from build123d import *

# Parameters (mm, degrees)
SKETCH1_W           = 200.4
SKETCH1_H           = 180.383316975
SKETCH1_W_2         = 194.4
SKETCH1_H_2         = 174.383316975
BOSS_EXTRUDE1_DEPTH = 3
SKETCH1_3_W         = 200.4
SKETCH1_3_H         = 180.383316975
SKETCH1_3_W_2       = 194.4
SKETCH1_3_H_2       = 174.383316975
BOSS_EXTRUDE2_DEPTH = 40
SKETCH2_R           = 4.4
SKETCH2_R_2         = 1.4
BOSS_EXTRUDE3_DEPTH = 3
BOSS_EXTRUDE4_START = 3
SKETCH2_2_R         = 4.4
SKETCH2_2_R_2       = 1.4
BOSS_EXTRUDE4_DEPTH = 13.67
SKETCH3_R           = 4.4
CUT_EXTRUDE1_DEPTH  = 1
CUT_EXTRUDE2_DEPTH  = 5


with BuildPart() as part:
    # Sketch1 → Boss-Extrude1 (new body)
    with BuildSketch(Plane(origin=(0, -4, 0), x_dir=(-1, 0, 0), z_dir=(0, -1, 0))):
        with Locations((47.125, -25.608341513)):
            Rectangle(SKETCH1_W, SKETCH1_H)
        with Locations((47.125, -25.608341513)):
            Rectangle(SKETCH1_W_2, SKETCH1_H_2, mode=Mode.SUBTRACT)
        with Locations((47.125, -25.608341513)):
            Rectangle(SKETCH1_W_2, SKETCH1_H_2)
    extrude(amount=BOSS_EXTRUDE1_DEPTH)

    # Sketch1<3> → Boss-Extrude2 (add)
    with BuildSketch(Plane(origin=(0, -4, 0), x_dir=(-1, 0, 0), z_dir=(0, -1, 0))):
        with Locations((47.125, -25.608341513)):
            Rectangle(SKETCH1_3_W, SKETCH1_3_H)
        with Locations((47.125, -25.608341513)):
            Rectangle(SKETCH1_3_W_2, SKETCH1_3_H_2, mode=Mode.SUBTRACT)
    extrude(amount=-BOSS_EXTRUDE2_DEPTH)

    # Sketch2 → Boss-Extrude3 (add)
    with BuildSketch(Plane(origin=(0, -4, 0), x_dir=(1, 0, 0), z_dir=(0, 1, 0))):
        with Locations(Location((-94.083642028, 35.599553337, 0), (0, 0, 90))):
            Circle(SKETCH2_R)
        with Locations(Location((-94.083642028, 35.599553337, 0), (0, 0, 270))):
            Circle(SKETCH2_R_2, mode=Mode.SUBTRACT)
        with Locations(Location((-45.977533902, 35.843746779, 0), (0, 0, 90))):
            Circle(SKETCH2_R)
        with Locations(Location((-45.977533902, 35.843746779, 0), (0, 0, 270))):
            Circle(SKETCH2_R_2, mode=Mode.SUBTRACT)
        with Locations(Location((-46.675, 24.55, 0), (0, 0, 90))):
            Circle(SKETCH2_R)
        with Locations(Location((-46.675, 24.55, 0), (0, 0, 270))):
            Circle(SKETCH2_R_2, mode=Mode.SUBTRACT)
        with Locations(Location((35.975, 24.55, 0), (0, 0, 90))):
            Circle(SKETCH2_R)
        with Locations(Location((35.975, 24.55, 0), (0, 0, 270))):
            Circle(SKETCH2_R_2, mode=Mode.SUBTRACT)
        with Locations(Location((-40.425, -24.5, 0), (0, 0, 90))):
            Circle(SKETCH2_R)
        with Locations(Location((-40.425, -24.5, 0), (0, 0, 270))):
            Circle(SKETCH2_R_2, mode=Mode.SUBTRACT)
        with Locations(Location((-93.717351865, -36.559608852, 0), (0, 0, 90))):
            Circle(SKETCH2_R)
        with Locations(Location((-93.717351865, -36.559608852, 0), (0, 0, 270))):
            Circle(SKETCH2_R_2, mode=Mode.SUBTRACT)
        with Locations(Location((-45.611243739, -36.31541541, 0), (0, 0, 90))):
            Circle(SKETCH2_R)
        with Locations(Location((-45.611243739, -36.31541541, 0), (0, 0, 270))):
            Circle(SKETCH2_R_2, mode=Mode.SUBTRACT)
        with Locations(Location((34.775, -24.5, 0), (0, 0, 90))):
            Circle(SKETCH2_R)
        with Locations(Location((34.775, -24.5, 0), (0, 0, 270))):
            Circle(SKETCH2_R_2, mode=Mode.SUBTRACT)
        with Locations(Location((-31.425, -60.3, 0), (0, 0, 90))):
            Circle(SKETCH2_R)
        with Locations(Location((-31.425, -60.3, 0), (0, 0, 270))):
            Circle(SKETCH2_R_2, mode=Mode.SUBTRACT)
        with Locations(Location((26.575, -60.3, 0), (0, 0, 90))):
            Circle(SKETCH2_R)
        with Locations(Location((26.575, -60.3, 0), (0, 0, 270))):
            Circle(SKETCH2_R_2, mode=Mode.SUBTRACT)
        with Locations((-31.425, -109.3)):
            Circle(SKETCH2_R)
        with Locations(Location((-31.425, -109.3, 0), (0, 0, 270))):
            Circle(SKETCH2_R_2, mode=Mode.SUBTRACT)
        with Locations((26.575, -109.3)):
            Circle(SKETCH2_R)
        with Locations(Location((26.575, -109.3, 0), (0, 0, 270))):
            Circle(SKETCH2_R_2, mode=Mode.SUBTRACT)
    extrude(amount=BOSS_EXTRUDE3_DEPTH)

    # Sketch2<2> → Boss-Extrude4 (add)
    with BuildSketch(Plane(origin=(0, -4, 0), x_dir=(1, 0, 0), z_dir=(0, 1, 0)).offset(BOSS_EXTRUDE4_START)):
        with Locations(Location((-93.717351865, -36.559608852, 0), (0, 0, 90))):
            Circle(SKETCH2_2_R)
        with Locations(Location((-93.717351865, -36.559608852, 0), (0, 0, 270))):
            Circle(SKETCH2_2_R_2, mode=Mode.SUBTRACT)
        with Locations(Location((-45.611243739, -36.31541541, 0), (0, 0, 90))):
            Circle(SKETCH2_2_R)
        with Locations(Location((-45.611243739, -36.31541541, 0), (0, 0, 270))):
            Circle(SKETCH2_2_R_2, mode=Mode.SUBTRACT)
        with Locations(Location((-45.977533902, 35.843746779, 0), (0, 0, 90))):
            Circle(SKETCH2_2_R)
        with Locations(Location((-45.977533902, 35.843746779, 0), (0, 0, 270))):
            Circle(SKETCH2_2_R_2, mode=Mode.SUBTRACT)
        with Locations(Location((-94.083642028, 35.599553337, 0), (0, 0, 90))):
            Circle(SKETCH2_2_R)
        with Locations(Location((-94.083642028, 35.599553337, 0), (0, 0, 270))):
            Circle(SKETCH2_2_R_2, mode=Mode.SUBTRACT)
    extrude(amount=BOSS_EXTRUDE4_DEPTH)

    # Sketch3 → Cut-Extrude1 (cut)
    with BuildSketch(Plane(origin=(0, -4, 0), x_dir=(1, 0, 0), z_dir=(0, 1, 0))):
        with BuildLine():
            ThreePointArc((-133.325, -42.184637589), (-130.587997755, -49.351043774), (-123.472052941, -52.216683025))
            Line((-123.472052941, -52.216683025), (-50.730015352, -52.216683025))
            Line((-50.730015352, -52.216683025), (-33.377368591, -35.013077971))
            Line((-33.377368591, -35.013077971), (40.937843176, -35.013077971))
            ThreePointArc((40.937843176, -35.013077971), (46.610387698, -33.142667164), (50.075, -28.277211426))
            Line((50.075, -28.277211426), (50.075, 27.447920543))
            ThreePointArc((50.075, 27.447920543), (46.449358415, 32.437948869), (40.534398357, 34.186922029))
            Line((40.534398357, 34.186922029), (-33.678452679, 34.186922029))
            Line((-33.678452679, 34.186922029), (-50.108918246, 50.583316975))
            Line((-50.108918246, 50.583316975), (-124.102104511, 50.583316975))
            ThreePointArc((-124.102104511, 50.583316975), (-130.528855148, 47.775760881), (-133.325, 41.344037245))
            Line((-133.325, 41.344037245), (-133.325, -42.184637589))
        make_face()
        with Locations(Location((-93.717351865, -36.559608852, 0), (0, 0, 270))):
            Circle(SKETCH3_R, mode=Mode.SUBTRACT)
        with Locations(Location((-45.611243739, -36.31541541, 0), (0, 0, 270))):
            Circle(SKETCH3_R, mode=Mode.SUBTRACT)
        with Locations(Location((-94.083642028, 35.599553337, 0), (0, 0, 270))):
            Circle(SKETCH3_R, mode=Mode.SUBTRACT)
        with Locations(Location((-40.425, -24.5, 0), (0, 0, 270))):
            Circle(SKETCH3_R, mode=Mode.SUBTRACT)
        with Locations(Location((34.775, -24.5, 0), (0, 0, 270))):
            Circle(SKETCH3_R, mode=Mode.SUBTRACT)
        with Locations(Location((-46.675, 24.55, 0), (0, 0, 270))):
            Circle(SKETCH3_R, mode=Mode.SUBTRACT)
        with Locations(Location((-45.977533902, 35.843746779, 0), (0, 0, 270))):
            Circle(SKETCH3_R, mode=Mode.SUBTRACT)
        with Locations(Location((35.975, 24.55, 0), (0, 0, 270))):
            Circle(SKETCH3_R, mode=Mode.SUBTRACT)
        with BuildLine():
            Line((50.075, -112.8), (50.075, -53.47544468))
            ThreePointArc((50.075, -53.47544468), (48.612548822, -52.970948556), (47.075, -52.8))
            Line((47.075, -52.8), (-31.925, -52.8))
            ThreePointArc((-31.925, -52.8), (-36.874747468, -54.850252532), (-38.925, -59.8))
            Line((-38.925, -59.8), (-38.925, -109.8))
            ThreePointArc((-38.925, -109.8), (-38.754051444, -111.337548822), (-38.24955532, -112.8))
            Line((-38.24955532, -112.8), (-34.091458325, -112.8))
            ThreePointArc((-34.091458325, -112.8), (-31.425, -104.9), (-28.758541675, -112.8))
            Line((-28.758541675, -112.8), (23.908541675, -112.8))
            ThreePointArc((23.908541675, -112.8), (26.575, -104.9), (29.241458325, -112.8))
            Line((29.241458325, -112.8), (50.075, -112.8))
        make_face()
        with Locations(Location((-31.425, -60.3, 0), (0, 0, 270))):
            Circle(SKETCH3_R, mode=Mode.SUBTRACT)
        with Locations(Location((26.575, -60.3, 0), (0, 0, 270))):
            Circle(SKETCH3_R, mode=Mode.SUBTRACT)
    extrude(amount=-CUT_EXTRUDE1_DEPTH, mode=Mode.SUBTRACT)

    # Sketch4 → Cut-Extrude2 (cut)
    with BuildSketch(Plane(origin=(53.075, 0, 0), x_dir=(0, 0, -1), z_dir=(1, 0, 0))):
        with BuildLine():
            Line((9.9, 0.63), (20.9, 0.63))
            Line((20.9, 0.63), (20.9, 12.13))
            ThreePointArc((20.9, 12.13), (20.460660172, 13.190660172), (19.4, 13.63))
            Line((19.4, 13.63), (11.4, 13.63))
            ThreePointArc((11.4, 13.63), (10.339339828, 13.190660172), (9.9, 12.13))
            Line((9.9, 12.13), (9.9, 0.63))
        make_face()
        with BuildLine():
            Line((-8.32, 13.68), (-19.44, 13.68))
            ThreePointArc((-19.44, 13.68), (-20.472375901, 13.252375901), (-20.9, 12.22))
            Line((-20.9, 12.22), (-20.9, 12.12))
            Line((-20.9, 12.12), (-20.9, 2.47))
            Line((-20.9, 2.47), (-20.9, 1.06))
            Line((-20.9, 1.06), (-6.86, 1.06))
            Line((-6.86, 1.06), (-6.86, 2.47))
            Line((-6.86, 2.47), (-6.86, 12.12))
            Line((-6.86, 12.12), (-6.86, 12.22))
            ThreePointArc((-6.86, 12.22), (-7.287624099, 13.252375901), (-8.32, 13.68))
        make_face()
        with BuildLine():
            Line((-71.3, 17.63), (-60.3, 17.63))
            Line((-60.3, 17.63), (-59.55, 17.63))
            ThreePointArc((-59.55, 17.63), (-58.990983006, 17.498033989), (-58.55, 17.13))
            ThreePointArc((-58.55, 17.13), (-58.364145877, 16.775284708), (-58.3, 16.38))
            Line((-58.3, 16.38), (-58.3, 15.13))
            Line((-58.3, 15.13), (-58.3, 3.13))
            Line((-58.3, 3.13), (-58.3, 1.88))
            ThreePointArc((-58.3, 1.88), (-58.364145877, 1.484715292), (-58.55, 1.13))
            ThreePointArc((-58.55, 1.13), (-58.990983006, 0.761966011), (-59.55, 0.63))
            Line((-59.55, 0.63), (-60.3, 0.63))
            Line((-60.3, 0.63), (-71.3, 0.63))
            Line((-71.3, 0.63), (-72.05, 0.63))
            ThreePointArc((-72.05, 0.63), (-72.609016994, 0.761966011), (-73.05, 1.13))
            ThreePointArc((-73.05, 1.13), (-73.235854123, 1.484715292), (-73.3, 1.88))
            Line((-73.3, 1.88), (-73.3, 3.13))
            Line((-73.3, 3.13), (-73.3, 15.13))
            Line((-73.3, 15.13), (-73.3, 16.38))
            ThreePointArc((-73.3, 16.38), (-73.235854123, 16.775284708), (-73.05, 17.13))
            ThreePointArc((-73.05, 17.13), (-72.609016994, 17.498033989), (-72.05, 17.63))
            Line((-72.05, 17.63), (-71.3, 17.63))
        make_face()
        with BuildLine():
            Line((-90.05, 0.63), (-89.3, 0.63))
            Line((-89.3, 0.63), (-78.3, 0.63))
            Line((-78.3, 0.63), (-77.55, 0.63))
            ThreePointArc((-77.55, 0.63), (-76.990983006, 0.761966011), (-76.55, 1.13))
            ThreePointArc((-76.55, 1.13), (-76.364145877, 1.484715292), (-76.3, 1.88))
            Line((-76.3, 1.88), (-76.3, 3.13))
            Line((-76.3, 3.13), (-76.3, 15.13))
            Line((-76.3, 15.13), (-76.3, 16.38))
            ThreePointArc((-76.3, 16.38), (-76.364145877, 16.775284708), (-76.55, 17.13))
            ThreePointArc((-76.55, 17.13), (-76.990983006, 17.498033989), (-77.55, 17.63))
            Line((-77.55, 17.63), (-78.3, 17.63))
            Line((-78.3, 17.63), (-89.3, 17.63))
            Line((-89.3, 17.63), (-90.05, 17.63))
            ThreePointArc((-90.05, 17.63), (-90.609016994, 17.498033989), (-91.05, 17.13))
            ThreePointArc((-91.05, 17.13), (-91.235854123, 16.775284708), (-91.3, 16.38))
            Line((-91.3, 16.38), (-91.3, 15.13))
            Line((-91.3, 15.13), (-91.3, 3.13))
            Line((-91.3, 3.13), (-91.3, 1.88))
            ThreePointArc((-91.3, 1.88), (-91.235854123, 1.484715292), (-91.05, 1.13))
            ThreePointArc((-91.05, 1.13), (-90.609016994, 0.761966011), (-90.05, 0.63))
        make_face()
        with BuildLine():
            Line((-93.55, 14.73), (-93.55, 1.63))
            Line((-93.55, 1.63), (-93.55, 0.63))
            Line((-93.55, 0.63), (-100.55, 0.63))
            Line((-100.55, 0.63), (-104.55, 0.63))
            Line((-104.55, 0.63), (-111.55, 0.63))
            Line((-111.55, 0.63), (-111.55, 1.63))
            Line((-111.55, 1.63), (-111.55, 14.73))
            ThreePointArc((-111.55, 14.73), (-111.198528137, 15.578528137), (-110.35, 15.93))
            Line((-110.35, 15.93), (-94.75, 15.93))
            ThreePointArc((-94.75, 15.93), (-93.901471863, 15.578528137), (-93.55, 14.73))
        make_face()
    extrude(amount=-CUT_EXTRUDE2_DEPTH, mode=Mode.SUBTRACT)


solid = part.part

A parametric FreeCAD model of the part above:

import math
import FreeCAD as App
import Part
import Sketcher
from FreeCAD import Vector
Q = App.Units.Quantity


def add_polygon(sketch, points):
    """Adds a closed chain of lines whose ends are joined by coincident constraints."""
    first, n = sketch.GeometryCount, len(points)
    for a, b in zip(points, points[1:] + points[:1]):
        sketch.addGeometry(Part.LineSegment(App.Vector(*a, 0), App.Vector(*b, 0)), False)
    for i in range(n):
        sketch.addConstraint(Sketcher.Constraint("Coincident", first + i, 2, first + (i + 1) % n, 1))

doc = App.newDocument("Part")
body = doc.addObject("PartDesign::Body", "Body")

# Sketch on XZ plane
sketch1 = body.newObject("Sketcher::SketchObject", "Sketch")
sketch1.AttachmentSupport = (doc.getObject("XZ_Plane"), [""])
sketch1.MapMode = "FlatFace"
sketch1.AttachmentOffset = App.Placement(Vector(0, 0, 4), App.Rotation())
add_polygon(sketch1, [(53, -65), (53, 116), (-147, 116), (-147, -65)])  # lines 0-3
sketch1.addConstraint([
    Sketcher.Constraint("Vertical", 0),
    Sketcher.Constraint("Horizontal", 1),
    Sketcher.Constraint("Vertical", 2),
    Sketcher.Constraint("Horizontal", 3),
    Sketcher.Constraint("DistanceX", 1, 2, 1, 1, Q("200.4 mm")),
    Sketcher.Constraint("DistanceY", -1, 1, 0, 2, Q("115.8 mm")),
    Sketcher.Constraint("DistanceX", -1, 1, 0, 2, Q("53.075 mm")),
    Sketcher.Constraint("DistanceY", 0, 1, 0, 2, Q("180.383317 mm")),
])
pad1 = body.newObject("PartDesign::Pad", "Pad")
pad1.Profile = sketch1
pad1.Length = 3

# Sketch on XZ plane
sketch2 = body.newObject("Sketcher::SketchObject", "Sketch001")
sketch2.AttachmentSupport = (doc.getObject("XZ_Plane"), [""])
sketch2.MapMode = "FlatFace"
sketch2.AttachmentOffset = App.Placement(Vector(0, 0, 4), App.Rotation())
add_polygon(sketch2, [(53, -65), (53, 116), (-147, 116), (-147, -65)])  # lines 0-3
add_polygon(sketch2, [(-144, 113), (50, 113), (50, -62), (-144, -62)])  # lines 4-7
sketch2.addConstraint([
    Sketcher.Constraint("Vertical", 0),
    Sketcher.Constraint("Horizontal", 1),
    Sketcher.Constraint("Vertical", 2),
    Sketcher.Constraint("Horizontal", 3),
    Sketcher.Constraint("Horizontal", 4),
    Sketcher.Constraint("Vertical", 5),
    Sketcher.Constraint("Horizontal", 6),
    Sketcher.Constraint("Vertical", 7),
    Sketcher.Constraint("DistanceX", 1, 2, 1, 1, Q("200.4 mm")),
    Sketcher.Constraint("DistanceX", 4, 1, 4, 2, Q("194.4 mm")),
    Sketcher.Constraint("DistanceX", 4, 2, 0, 2, Q("3 mm")),
    Sketcher.Constraint("DistanceY", 4, 2, 0, 2, Q("3 mm")),
    Sketcher.Constraint("DistanceY", 3, 2, 5, 2, Q("3 mm")),
    Sketcher.Constraint("DistanceY", -1, 1, 0, 2, Q("115.8 mm")),
    Sketcher.Constraint("DistanceX", -1, 1, 0, 2, Q("53.075 mm")),
    Sketcher.Constraint("DistanceY", 0, 1, 0, 2, Q("180.383317 mm")),
])
pad2 = body.newObject("PartDesign::Pad", "Pad001")
pad2.Profile = sketch2
pad2.Length = 40
pad2.Reversed = True

# Sketch on XZ plane
sketch3 = body.newObject("Sketcher::SketchObject", "Sketch002")
sketch3.AttachmentSupport = (doc.getObject("XZ_Plane"), [""])
sketch3.MapMode = "FlatFace"
sketch3.AttachmentOffset = App.Placement(Vector(0, 0, 4), App.Rotation())
sketch3.addGeometry([
    Part.Circle(Vector(-94.1, -35.6, 0), Vector(0, 0, 1), 4.4),  # 0
    Part.Circle(Vector(-94.1, -35.6, 0), Vector(0, 0, 1), 1.4),  # 1
    Part.Circle(Vector(-46, -35.8, 0), Vector(0, 0, 1), 4.4),  # 2
    Part.Circle(Vector(-46, -35.8, 0), Vector(0, 0, 1), 1.4),  # 3
    Part.Circle(Vector(-46.7, -24.6, 0), Vector(0, 0, 1), 4.4),  # 4
    Part.Circle(Vector(-46.7, -24.6, 0), Vector(0, 0, 1), 1.4),  # 5
    Part.Circle(Vector(36, -24.6, 0), Vector(0, 0, 1), 4.4),  # 6
    Part.Circle(Vector(36, -24.6, 0), Vector(0, 0, 1), 1.4),  # 7
    Part.Circle(Vector(-40.4, 24.5, 0), Vector(0, 0, 1), 4.4),  # 8
    Part.Circle(Vector(-40.4, 24.5, 0), Vector(0, 0, 1), 1.4),  # 9
    Part.Circle(Vector(-93.7, 36.6, 0), Vector(0, 0, 1), 4.4),  # 10
    Part.Circle(Vector(-93.7, 36.6, 0), Vector(0, 0, 1), 1.4),  # 11
    Part.Circle(Vector(-45.6, 36.3, 0), Vector(0, 0, 1), 4.4),  # 12
    Part.Circle(Vector(-45.6, 36.3, 0), Vector(0, 0, 1), 1.4),  # 13
    Part.Circle(Vector(34.8, 24.5, 0), Vector(0, 0, 1), 4.4),  # 14
    Part.Circle(Vector(34.8, 24.5, 0), Vector(0, 0, 1), 1.4),  # 15
    Part.Circle(Vector(-31.4, 60.3, 0), Vector(0, 0, 1), 4.4),  # 16
    Part.Circle(Vector(-31.4, 60.3, 0), Vector(0, 0, 1), 1.4),  # 17
    Part.Circle(Vector(26.6, 60.3, 0), Vector(0, 0, 1), 4.4),  # 18
    Part.Circle(Vector(26.6, 60.3, 0), Vector(0, 0, 1), 1.4),  # 19
    Part.Circle(Vector(-31.4, 109.3, 0), Vector(0, 0, 1), 4.4),  # 20
    Part.Circle(Vector(-31.4, 109.3, 0), Vector(0, 0, 1), 1.4),  # 21
    Part.Circle(Vector(26.6, 109.3, 0), Vector(0, 0, 1), 4.4),  # 22
    Part.Circle(Vector(26.6, 109.3, 0), Vector(0, 0, 1), 1.4),  # 23
], False)
sketch3.addConstraint([
    Sketcher.Constraint("Coincident", 1, 3, 0, 3),
    Sketcher.Constraint("Coincident", 3, 3, 2, 3),
    Sketcher.Constraint("Coincident", 5, 3, 4, 3),
    Sketcher.Constraint("Coincident", 7, 3, 6, 3),
    Sketcher.Constraint("Coincident", 9, 3, 8, 3),
    Sketcher.Constraint("Coincident", 11, 3, 10, 3),
    Sketcher.Constraint("Coincident", 13, 3, 12, 3),
    Sketcher.Constraint("Coincident", 15, 3, 14, 3),
    Sketcher.Constraint("Coincident", 17, 3, 16, 3),
    Sketcher.Constraint("Coincident", 19, 3, 18, 3),
    Sketcher.Constraint("Coincident", 21, 3, 20, 3),
    Sketcher.Constraint("Coincident", 23, 3, 22, 3),
    Sketcher.Constraint("Equal", 0, 2),
    Sketcher.Constraint("Equal", 1, 3),
    Sketcher.Constraint("Equal", 2, 4),
    Sketcher.Constraint("Equal", 3, 5),
    Sketcher.Constraint("Equal", 4, 6),
    Sketcher.Constraint("Equal", 5, 7),
    Sketcher.Constraint("Equal", 6, 8),
    Sketcher.Constraint("Equal", 7, 9),
    Sketcher.Constraint("Equal", 8, 10),
    Sketcher.Constraint("Equal", 9, 11),
    Sketcher.Constraint("Equal", 10, 12),
    Sketcher.Constraint("Equal", 11, 13),
    Sketcher.Constraint("Equal", 12, 14),
    Sketcher.Constraint("Equal", 13, 15),
    Sketcher.Constraint("Equal", 14, 16),
    Sketcher.Constraint("Equal", 15, 17),
    Sketcher.Constraint("Equal", 16, 18),
    Sketcher.Constraint("Equal", 17, 19),
    Sketcher.Constraint("Equal", 18, 20),
    Sketcher.Constraint("Equal", 19, 21),
    Sketcher.Constraint("Equal", 20, 22),
    Sketcher.Constraint("Equal", 21, 23),
    Sketcher.Constraint("Horizontal", 5, 3, 6, 3),
    Sketcher.Constraint("Horizontal", 9, 3, 14, 3),
    Sketcher.Constraint("Horizontal", 17, 3, 18, 3),
    Sketcher.Constraint("Horizontal", 21, 3, 22, 3),
    Sketcher.Constraint("Vertical", 17, 3, 20, 3),
    Sketcher.Constraint("Vertical", 19, 3, 22, 3),
    Sketcher.Constraint("Diameter", 0, Q("8.8 mm")),
    Sketcher.Constraint("Diameter", 1, Q("2.8 mm")),
    Sketcher.Constraint("DistanceX", 8, 3, 16, 3, Q("9 mm")),
    Sketcher.Constraint("DistanceX", 16, 3, 18, 3, Q("58 mm")),
    Sketcher.Constraint("DistanceY", 16, 3, 20, 3, Q("49 mm")),
    Sketcher.Constraint("DistanceY", -1, 1, 8, 3, Q("24.5 mm")),
    Sketcher.Constraint("DistanceY", -1, 1, 16, 3, Q("60.3 mm")),
    Sketcher.Constraint("DistanceX", 14, 3, 6, 3, Q("1.2 mm")),
    Sketcher.Constraint("DistanceX", 8, 3, 14, 3, Q("75.2 mm")),
    Sketcher.Constraint("DistanceY", 4, 3, -1, 1, Q("24.55 mm")),
    Sketcher.Constraint("DistanceX", 4, 3, 6, 3, Q("82.65 mm")),
    Sketcher.Constraint("DistanceX", 4, 3, -1, 1, Q("46.675 mm")),
    Sketcher.Constraint("DistanceX", 10, 3, -1, 1, Q("93.717352 mm")),
    Sketcher.Constraint("DistanceY", -1, 1, 10, 3, Q("36.559609 mm")),
    Sketcher.Constraint("DistanceX", 0, 3, 2, 3, Q("48.106108 mm")),
    Sketcher.Constraint("DistanceX", 0, 3, 10, 3, Q("0.36629 mm")),
    Sketcher.Constraint("DistanceX", 10, 3, 12, 3, Q("48.106108 mm")),
    Sketcher.Constraint("DistanceY", 0, 3, -1, 1, Q("35.599553 mm")),
    Sketcher.Constraint("DistanceY", 2, 3, -1, 1, Q("35.843747 mm")),
    Sketcher.Constraint("DistanceY", -1, 1, 12, 3, Q("36.315415 mm")),
])
pad3 = body.newObject("PartDesign::Pad", "Pad002")
pad3.Profile = sketch3
pad3.Length = 3
pad3.Reversed = True

# Sketch on XZ plane
sketch4 = body.newObject("Sketcher::SketchObject", "Sketch003")
sketch4.AttachmentSupport = (doc.getObject("XZ_Plane"), [""])
sketch4.MapMode = "FlatFace"
sketch4.AttachmentOffset = App.Placement(Vector(0, 0, 1), App.Rotation())
sketch4.addGeometry([
    Part.Circle(Vector(-93.7, 36.6, 0), Vector(0, 0, 1), 4.4),  # 0
    Part.Circle(Vector(-93.7, 36.6, 0), Vector(0, 0, 1), 1.4),  # 1
    Part.Circle(Vector(-45.6, 36.3, 0), Vector(0, 0, 1), 4.4),  # 2
    Part.Circle(Vector(-45.6, 36.3, 0), Vector(0, 0, 1), 1.4),  # 3
    Part.Circle(Vector(-46, -35.8, 0), Vector(0, 0, 1), 4.4),  # 4
    Part.Circle(Vector(-46, -35.8, 0), Vector(0, 0, 1), 1.4),  # 5
    Part.Circle(Vector(-94.1, -35.6, 0), Vector(0, 0, 1), 4.4),  # 6
    Part.Circle(Vector(-94.1, -35.6, 0), Vector(0, 0, 1), 1.4),  # 7
], False)
sketch4.addConstraint([
    Sketcher.Constraint("Coincident", 1, 3, 0, 3),
    Sketcher.Constraint("Coincident", 3, 3, 2, 3),
    Sketcher.Constraint("Coincident", 5, 3, 4, 3),
    Sketcher.Constraint("Coincident", 7, 3, 6, 3),
    Sketcher.Constraint("Equal", 0, 2),
    Sketcher.Constraint("Equal", 1, 3),
    Sketcher.Constraint("Equal", 2, 4),
    Sketcher.Constraint("Equal", 3, 5),
    Sketcher.Constraint("Equal", 4, 6),
    Sketcher.Constraint("Equal", 5, 7),
    Sketcher.Constraint("Diameter", 0, Q("8.8 mm")),
    Sketcher.Constraint("Diameter", 1, Q("2.8 mm")),
    Sketcher.Constraint("DistanceX", 6, 3, 2, 3, Q("48.472398 mm")),
    Sketcher.Constraint("DistanceX", 0, 3, -1, 1, Q("93.717352 mm")),
    Sketcher.Constraint("DistanceY", -1, 1, 0, 3, Q("36.559609 mm")),
    Sketcher.Constraint("DistanceX", 0, 3, 2, 3, Q("48.106108 mm")),
    Sketcher.Constraint("DistanceX", 4, 3, 2, 3, Q("0.36629 mm")),
    Sketcher.Constraint("DistanceY", 6, 3, 2, 3, Q("71.914969 mm")),
    Sketcher.Constraint("DistanceY", -1, 1, 2, 3, Q("36.315415 mm")),
    Sketcher.Constraint("DistanceY", 4, 3, -1, 1, Q("35.843747 mm")),
])
pad4 = body.newObject("PartDesign::Pad", "Pad003")
pad4.Profile = sketch4
pad4.Length = 13.67
pad4.Reversed = True

# Sketch on XZ plane
sketch5 = body.newObject("Sketcher::SketchObject", "Sketch004")
sketch5.AttachmentSupport = (doc.getObject("XZ_Plane"), [""])
sketch5.MapMode = "FlatFace"
sketch5.AttachmentOffset = App.Placement(Vector(0, 0, 4), App.Rotation())
sketch5.addGeometry([
    Part.ArcOfCircle(Part.Circle(Vector(-123.7, 42.6, 0), Vector(0, 0, 1), 9.6), math.radians(88), math.radians(183)),  # 0
    Part.LineSegment(Vector(-123.5, 52.2, 0), Vector(-50.7, 52.2, 0)),  # 1
    Part.LineSegment(Vector(-50.7, 52.2, 0), Vector(-33.4, 35, 0)),  # 2
    Part.LineSegment(Vector(-33.4, 35, 0), Vector(40.9, 35, 0)),  # 3
    Part.ArcOfCircle(Part.Circle(Vector(40.9, 25.4, 0), Vector(0, 0, 1), 9.6), math.radians(17), math.radians(90)),  # 4
    Part.LineSegment(Vector(50.1, 28.3, 0), Vector(50.1, -27.4, 0)),  # 5
    Part.ArcOfCircle(Part.Circle(Vector(40.9, -24.6, 0), Vector(0, 0, 1), 9.6), math.radians(-92), math.radians(-17)),  # 6
    Part.LineSegment(Vector(40.5, -34.2, 0), Vector(-33.7, -34.2, 0)),  # 7
    Part.LineSegment(Vector(-33.7, -34.2, 0), Vector(-50.1, -50.6, 0)),  # 8
    Part.LineSegment(Vector(-50.1, -50.6, 0), Vector(-124.1, -50.6, 0)),  # 9
    Part.ArcOfCircle(Part.Circle(Vector(-123.7, -41, 0), Vector(0, 0, 1), 9.6), math.radians(-178), math.radians(-92)),  # 10
    Part.LineSegment(Vector(-133.3, -41.3, 0), Vector(-133.3, 42.2, 0)),  # 11
    Part.Circle(Vector(-93.7, 36.6, 0), Vector(0, 0, 1), 4.4),  # 12
    Part.Circle(Vector(-45.6, 36.3, 0), Vector(0, 0, 1), 4.4),  # 13
    Part.Circle(Vector(-40.4, 24.5, 0), Vector(0, 0, 1), 4.4),  # 14
    Part.Circle(Vector(34.8, 24.5, 0), Vector(0, 0, 1), 4.4),  # 15
    Part.Circle(Vector(-94.1, -35.6, 0), Vector(0, 0, 1), 4.4),  # 16
    Part.Circle(Vector(-46.7, -24.6, 0), Vector(0, 0, 1), 4.4),  # 17
    Part.Circle(Vector(-46, -35.8, 0), Vector(0, 0, 1), 4.4),  # 18
    Part.Circle(Vector(36, -24.6, 0), Vector(0, 0, 1), 4.4),  # 19
    Part.LineSegment(Vector(50.1, 112.8, 0), Vector(50.1, 53.5, 0)),  # 20
    Part.ArcOfCircle(Part.Circle(Vector(47.1, 59.8, 0), Vector(0, 0, 1), 7), math.radians(-90), math.radians(-65)),  # 21
    Part.LineSegment(Vector(47.1, 52.8, 0), Vector(-31.9, 52.8, 0)),  # 22
    Part.ArcOfCircle(Part.Circle(Vector(-31.9, 59.8, 0), Vector(0, 0, 1), 7), math.radians(-180), math.radians(-90)),  # 23
    Part.LineSegment(Vector(-38.9, 59.8, 0), Vector(-38.9, 109.8, 0)),  # 24
    Part.ArcOfCircle(Part.Circle(Vector(-31.9, 109.8, 0), Vector(0, 0, 1), 7), math.radians(155), math.radians(180)),  # 25
    Part.LineSegment(Vector(-38.2, 112.8, 0), Vector(-34.1, 112.8, 0)),  # 26
    Part.ArcOfCircle(Part.Circle(Vector(-31.4, 109.3, 0), Vector(0, 0, 1), 4.4), math.radians(127), math.radians(413)),  # 27
    Part.LineSegment(Vector(-28.8, 112.8, 0), Vector(23.9, 112.8, 0)),  # 28
    Part.ArcOfCircle(Part.Circle(Vector(26.6, 109.3, 0), Vector(0, 0, 1), 4.4), math.radians(127), math.radians(413)),  # 29
    Part.LineSegment(Vector(29.2, 112.8, 0), Vector(50.1, 112.8, 0)),  # 30
    Part.Circle(Vector(-31.4, 60.3, 0), Vector(0, 0, 1), 4.4),  # 31
    Part.Circle(Vector(26.6, 60.3, 0), Vector(0, 0, 1), 4.4),  # 32
], False)
sketch5.addConstraint([
    Sketcher.Constraint("Coincident", 0, 1, 1, 1),
    Sketcher.Constraint("Coincident", 1, 2, 2, 1),
    Sketcher.Constraint("Coincident", 2, 2, 3, 1),
    Sketcher.Constraint("Coincident", 3, 2, 4, 2),
    Sketcher.Constraint("Coincident", 4, 1, 5, 1),
    Sketcher.Constraint("Coincident", 5, 2, 6, 2),
    Sketcher.Constraint("Coincident", 6, 1, 7, 1),
    Sketcher.Constraint("Coincident", 7, 2, 8, 1),
    Sketcher.Constraint("Coincident", 8, 2, 9, 1),
    Sketcher.Constraint("Coincident", 9, 2, 10, 2),
    Sketcher.Constraint("Coincident", 10, 1, 11, 1),
    Sketcher.Constraint("Coincident", 11, 2, 0, 2),
    Sketcher.Constraint("Coincident", 20, 2, 21, 2),
    Sketcher.Constraint("Tangent", 21, 1, 22, 1),
    Sketcher.Constraint("Tangent", 22, 2, 23, 2),
    Sketcher.Constraint("Tangent", 23, 1, 24, 1),
    Sketcher.Constraint("Tangent", 24, 2, 25, 2),
    Sketcher.Constraint("Coincident", 25, 1, 26, 1),
    Sketcher.Constraint("Coincident", 26, 2, 27, 1),
    Sketcher.Constraint("Coincident", 27, 2, 28, 1),
    Sketcher.Constraint("Coincident", 28, 2, 29, 1),
    Sketcher.Constraint("Coincident", 29, 2, 30, 1),
    Sketcher.Constraint("Coincident", 30, 2, 20, 1),
    Sketcher.Constraint("Horizontal", 1),
    Sketcher.Constraint("Horizontal", 3),
    Sketcher.Constraint("Vertical", 5),
    Sketcher.Constraint("Horizontal", 7),
    Sketcher.Constraint("Horizontal", 9),
    Sketcher.Constraint("Vertical", 11),
    Sketcher.Constraint("Vertical", 20),
    Sketcher.Constraint("Horizontal", 22),
    Sketcher.Constraint("Vertical", 24),
    Sketcher.Constraint("Horizontal", 26),
    Sketcher.Constraint("Horizontal", 28),
    Sketcher.Constraint("Horizontal", 30),
    Sketcher.Constraint("Equal", 0, 4),
    Sketcher.Constraint("Equal", 4, 6),
    Sketcher.Constraint("Equal", 6, 10),
    Sketcher.Constraint("Equal", 12, 13),
    Sketcher.Constraint("Equal", 13, 14),
    Sketcher.Constraint("Equal", 14, 15),
    Sketcher.Constraint("Equal", 15, 16),
    Sketcher.Constraint("Equal", 16, 17),
    Sketcher.Constraint("Equal", 17, 18),
    Sketcher.Constraint("Equal", 18, 19),
    Sketcher.Constraint("Equal", 21, 23),
    Sketcher.Constraint("Equal", 23, 25),
    Sketcher.Constraint("Equal", 19, 27),
    Sketcher.Constraint("Equal", 27, 29),
    Sketcher.Constraint("Equal", 29, 31),
    Sketcher.Constraint("Equal", 31, 32),
    Sketcher.Constraint("Horizontal", 14, 3, 15, 3),
    Sketcher.Constraint("Horizontal", 17, 3, 19, 3),
    Sketcher.Constraint("Horizontal", 27, 3, 29, 3),
    Sketcher.Constraint("Horizontal", 31, 3, 32, 3),
    Sketcher.Constraint("Horizontal", 26, 2, 27, 2),
    Sketcher.Constraint("Horizontal", 28, 2, 29, 2),
    Sketcher.Constraint("Vertical", 27, 3, 31, 3),
    Sketcher.Constraint("Vertical", 29, 3, 32, 3),
    Sketcher.Constraint("Vertical", 5, 2, 20, 2),
    Sketcher.Constraint("Radius", 21, Q("7 mm")),
    Sketcher.Constraint("Diameter", 12, Q("8.8 mm")),
    Sketcher.Constraint("DistanceX", 22, 2, 22, 1, Q("79 mm")),
    Sketcher.Constraint("DistanceY", 24, 1, 24, 2, Q("50 mm")),
    Sketcher.Constraint("Radius", 0, Q("9.588 mm")),
    Sketcher.Constraint("DistanceX", 14, 3, 27, 3, Q("9 mm")),
    Sketcher.Constraint("DistanceX", 27, 3, 29, 3, Q("58 mm")),
    Sketcher.Constraint("DistanceY", 31, 3, 27, 3, Q("49 mm")),
    Sketcher.Constraint("DistanceX", 21, 3, 4, 1, Q("3 mm")),
    Sketcher.Constraint("DistanceY", 24, 2, 25, 1, Q("3 mm")),
    Sketcher.Constraint("DistanceY", -1, 1, 14, 3, Q("24.5 mm")),
    Sketcher.Constraint("DistanceY", -1, 1, 21, 3, Q("59.8 mm")),
    Sketcher.Constraint("DistanceY", -1, 1, 27, 3, Q("109.3 mm")),
    Sketcher.Constraint("DistanceX", 14, 3, 15, 3, Q("75.2 mm")),
    Sketcher.Constraint("DistanceX", 15, 3, 19, 3, Q("1.2 mm")),
    Sketcher.Constraint("DistanceX", 15, 3, 21, 3, Q("12.3 mm")),
    Sketcher.Constraint("DistanceY", 7, 2, 2, 2, Q("69.2 mm")),
    Sketcher.Constraint("DistanceY", 17, 3, -1, 1, Q("24.55 mm")),
    Sketcher.Constraint("DistanceX", 17, 3, 14, 3, Q("6.25 mm")),
    Sketcher.Constraint("DistanceX", 14, 3, -1, 1, Q("40.425 mm")),
    Sketcher.Constraint("DistanceX", 10, 1, -1, 1, Q("133.325 mm")),
    Sketcher.Constraint("DistanceY", 6, 3, 13, 3, Q("60.922001 mm")),
    Sketcher.Constraint("DistanceY", 6, 1, 5, 2, Q("6.739001 mm")),
    Sketcher.Constraint("DistanceX", 3, 1, 3, 2, Q("74.315212 mm")),
    Sketcher.Constraint("DistanceX", 7, 2, 7, 1, Q("74.212851 mm")),
    Sketcher.Constraint("DistanceY", 5, 2, 5, 1, Q("55.725132 mm")),
    Sketcher.Constraint("DistanceX", 10, 3, -1, 1, Q("123.743101 mm")),
    Sketcher.Constraint("DistanceX", -1, 1, 6, 1, Q("40.534398 mm")),
    Sketcher.Constraint("DistanceX", 16, 3, 13, 3, Q("48.472398 mm")),
    Sketcher.Constraint("DistanceX", 0, 1, 12, 3, Q("29.754701 mm")),
    Sketcher.Constraint("Distance", 8, Q("23.212108 mm")),
    Sketcher.Constraint("DistanceX", 1, 1, 1, 2, Q("72.742038 mm")),
    Sketcher.Constraint("DistanceX", 9, 2, 9, 1, Q("73.993186 mm")),
    Sketcher.Constraint("DistanceY", 11, 1, 11, 2, Q("83.528675 mm")),
    Sketcher.Constraint("DistanceY", -1, 1, 0, 3, Q("42.63264 mm")),
    Sketcher.Constraint("DistanceY", 10, 3, -1, 1, Q("41.00204 mm")),
    Sketcher.Constraint("DistanceX", 12, 3, -1, 1, Q("93.717352 mm")),
    Sketcher.Constraint("DistanceY", -1, 1, 12, 3, Q("36.559609 mm")),
    Sketcher.Constraint("DistanceX", 2, 2, -1, 1, Q("33.377369 mm")),
    Sketcher.Constraint("DistanceY", -1, 1, 4, 1, Q("28.277211 mm")),
    Sketcher.Constraint("DistanceX", 12, 3, 13, 3, Q("48.106108 mm")),
    Sketcher.Constraint("DistanceY", 16, 3, 13, 3, Q("71.914969 mm")),
    Sketcher.Constraint("DistanceX", 16, 3, 18, 3, Q("48.106108 mm")),
    Sketcher.Constraint("DistanceY", 8, 2, 18, 3, Q("14.73957 mm")),
])
pocket1 = body.newObject("PartDesign::Pocket", "Pocket")
pocket1.Profile = sketch5
pocket1.Length = 1
pocket1.Reversed = True

# Sketch on YZ plane
sketch6 = body.newObject("Sketcher::SketchObject", "Sketch005")
sketch6.AttachmentSupport = (doc.getObject("YZ_Plane"), [""])
sketch6.MapMode = "FlatFace"
sketch6.AttachmentOffset = App.Placement(Vector(0, 0, 53.075), App.Rotation())
sketch6.addGeometry([
    Part.LineSegment(Vector(0.6, -9.9, 0), Vector(0.6, -20.9, 0)),  # 0
    Part.LineSegment(Vector(0.6, -20.9, 0), Vector(12.1, -20.9, 0)),  # 1
    Part.ArcOfCircle(Part.Circle(Vector(12.1, -19.4, 0), Vector(0, 0, 1), 1.5), math.radians(-90), math.radians(0)),  # 2
    Part.LineSegment(Vector(13.6, -19.4, 0), Vector(13.6, -11.4, 0)),  # 3
    Part.ArcOfCircle(Part.Circle(Vector(12.1, -11.4, 0), Vector(0, 0, 1), 1.5), math.radians(0), math.radians(90)),  # 4
    Part.LineSegment(Vector(12.1, -9.9, 0), Vector(0.6, -9.9, 0)),  # 5
    Part.LineSegment(Vector(13.7, 8.3, 0), Vector(13.7, 19.4, 0)),  # 6
    Part.ArcOfCircle(Part.Circle(Vector(12.2, 19.4, 0), Vector(0, 0, 1), 1.5), math.radians(0), math.radians(90)),  # 7
    Part.LineSegment(Vector(12.2, 20.9, 0), Vector(1.1, 20.9, 0)),  # 8
    Part.LineSegment(Vector(1.1, 20.9, 0), Vector(1.1, 6.9, 0)),  # 9
    Part.LineSegment(Vector(1.1, 6.9, 0), Vector(12.2, 6.9, 0)),  # 10
    Part.ArcOfCircle(Part.Circle(Vector(12.2, 8.3, 0), Vector(0, 0, 1), 1.5), math.radians(-90), math.radians(0)),  # 11
    Part.ArcOfCircle(Part.Circle(Vector(16.4, 59.5, 0), Vector(0, 0, 1), 1.2), math.radians(-53), math.radians(0)),  # 12
    Part.LineSegment(Vector(17.6, 59.5, 0), Vector(17.6, 72, 0)),  # 13
    Part.ArcOfCircle(Part.Circle(Vector(16.4, 72, 0), Vector(0, 0, 1), 1.2), math.radians(0), math.radians(53)),  # 14
    Part.ArcOfCircle(Part.Circle(Vector(16.4, 72.1, 0), Vector(0, 0, 1), 1.2), math.radians(53), math.radians(90)),  # 15
    Part.LineSegment(Vector(16.4, 73.3, 0), Vector(1.9, 73.3, 0)),  # 16
    Part.ArcOfCircle(Part.Circle(Vector(1.9, 72.1, 0), Vector(0, 0, 1), 1.2), math.radians(90), math.radians(127)),  # 17
    Part.ArcOfCircle(Part.Circle(Vector(1.9, 72, 0), Vector(0, 0, 1), 1.2), math.radians(127), math.radians(180)),  # 18
    Part.LineSegment(Vector(0.6, 72, 0), Vector(0.6, 59.5, 0)),  # 19
    Part.ArcOfCircle(Part.Circle(Vector(1.9, 59.5, 0), Vector(0, 0, 1), 1.2), math.radians(180), math.radians(233)),  # 20
    Part.ArcOfCircle(Part.Circle(Vector(1.9, 59.5, 0), Vector(0, 0, 1), 1.2), math.radians(-127), math.radians(-90)),  # 21
    Part.LineSegment(Vector(1.9, 58.3, 0), Vector(16.4, 58.3, 0)),  # 22
    Part.ArcOfCircle(Part.Circle(Vector(16.4, 59.5, 0), Vector(0, 0, 1), 1.2), math.radians(-90), math.radians(-53)),  # 23
    Part.LineSegment(Vector(0.6, 90, 0), Vector(0.6, 77.5, 0)),  # 24
    Part.ArcOfCircle(Part.Circle(Vector(1.9, 77.5, 0), Vector(0, 0, 1), 1.2), math.radians(180), math.radians(233)),  # 25
    Part.ArcOfCircle(Part.Circle(Vector(1.9, 77.5, 0), Vector(0, 0, 1), 1.2), math.radians(-127), math.radians(-90)),  # 26
    Part.LineSegment(Vector(1.9, 76.3, 0), Vector(16.4, 76.3, 0)),  # 27
    Part.ArcOfCircle(Part.Circle(Vector(16.4, 77.5, 0), Vector(0, 0, 1), 1.2), math.radians(-90), math.radians(-53)),  # 28
    Part.ArcOfCircle(Part.Circle(Vector(16.4, 77.5, 0), Vector(0, 0, 1), 1.2), math.radians(-53), math.radians(0)),  # 29
    Part.LineSegment(Vector(17.6, 77.5, 0), Vector(17.6, 90, 0)),  # 30
    Part.ArcOfCircle(Part.Circle(Vector(16.4, 90, 0), Vector(0, 0, 1), 1.2), math.radians(0), math.radians(53)),  # 31
    Part.ArcOfCircle(Part.Circle(Vector(16.4, 90.1, 0), Vector(0, 0, 1), 1.2), math.radians(53), math.radians(90)),  # 32
    Part.LineSegment(Vector(16.4, 91.3, 0), Vector(1.9, 91.3, 0)),  # 33
    Part.ArcOfCircle(Part.Circle(Vector(1.9, 90.1, 0), Vector(0, 0, 1), 1.2), math.radians(90), math.radians(127)),  # 34
    Part.ArcOfCircle(Part.Circle(Vector(1.9, 90, 0), Vector(0, 0, 1), 1.2), math.radians(127), math.radians(180)),  # 35
    Part.LineSegment(Vector(0.6, 93.5, 0), Vector(14.7, 93.5, 0)),  # 36
    Part.ArcOfCircle(Part.Circle(Vector(14.7, 94.8, 0), Vector(0, 0, 1), 1.2), math.radians(-90), math.radians(0)),  # 37
    Part.LineSegment(Vector(15.9, 94.8, 0), Vector(15.9, 110.3, 0)),  # 38
    Part.ArcOfCircle(Part.Circle(Vector(14.7, 110.3, 0), Vector(0, 0, 1), 1.2), math.radians(0), math.radians(90)),  # 39
    Part.LineSegment(Vector(14.7, 111.5, 0), Vector(0.6, 111.5, 0)),  # 40
    Part.LineSegment(Vector(0.6, 111.5, 0), Vector(0.6, 93.5, 0)),  # 41
], False)
sketch6.addConstraint([
    Sketcher.Constraint("Coincident", 0, 2, 1, 1),
    Sketcher.Constraint("Tangent", 1, 2, 2, 1),
    Sketcher.Constraint("Tangent", 2, 2, 3, 1),
    Sketcher.Constraint("Tangent", 3, 2, 4, 1),
    Sketcher.Constraint("Tangent", 4, 2, 5, 1),
    Sketcher.Constraint("Coincident", 5, 2, 0, 1),
    Sketcher.Constraint("Tangent", 6, 2, 7, 1),
    Sketcher.Constraint("Tangent", 7, 2, 8, 1),
    Sketcher.Constraint("Coincident", 8, 2, 9, 1),
    Sketcher.Constraint("Coincident", 9, 2, 10, 1),
    Sketcher.Constraint("Tangent", 10, 2, 11, 1),
    Sketcher.Constraint("Tangent", 11, 2, 6, 1),
    Sketcher.Constraint("Tangent", 12, 2, 13, 1),
    Sketcher.Constraint("Tangent", 13, 2, 14, 1),
    Sketcher.Constraint("Tangent", 14, 2, 15, 1),
    Sketcher.Constraint("Tangent", 15, 2, 16, 1),
    Sketcher.Constraint("Tangent", 16, 2, 17, 1),
    Sketcher.Constraint("Tangent", 17, 2, 18, 1),
    Sketcher.Constraint("Tangent", 18, 2, 19, 1),
    Sketcher.Constraint("Tangent", 19, 2, 20, 1),
    Sketcher.Constraint("Tangent", 20, 2, 21, 1),
    Sketcher.Constraint("Tangent", 21, 2, 22, 1),
    Sketcher.Constraint("Tangent", 22, 2, 23, 1),
    Sketcher.Constraint("Tangent", 23, 2, 12, 1),
    Sketcher.Constraint("Tangent", 24, 2, 25, 1),
    Sketcher.Constraint("Tangent", 25, 2, 26, 1),
    Sketcher.Constraint("Tangent", 26, 2, 27, 1),
    Sketcher.Constraint("Tangent", 27, 2, 28, 1),
    Sketcher.Constraint("Tangent", 28, 2, 29, 1),
    Sketcher.Constraint("Tangent", 29, 2, 30, 1),
    Sketcher.Constraint("Tangent", 30, 2, 31, 1),
    Sketcher.Constraint("Tangent", 31, 2, 32, 1),
    Sketcher.Constraint("Tangent", 32, 2, 33, 1),
    Sketcher.Constraint("Tangent", 33, 2, 34, 1),
    Sketcher.Constraint("Tangent", 34, 2, 35, 1),
    Sketcher.Constraint("Tangent", 35, 2, 24, 1),
    Sketcher.Constraint("Tangent", 36, 2, 37, 1),
    Sketcher.Constraint("Tangent", 37, 2, 38, 1),
    Sketcher.Constraint("Tangent", 38, 2, 39, 1),
    Sketcher.Constraint("Tangent", 39, 2, 40, 1),
    Sketcher.Constraint("Coincident", 40, 2, 41, 1),
    Sketcher.Constraint("Coincident", 41, 2, 36, 1),
    Sketcher.Constraint("Vertical", 0),
    Sketcher.Constraint("Horizontal", 1),
    Sketcher.Constraint("Vertical", 3),
    Sketcher.Constraint("Horizontal", 5),
    Sketcher.Constraint("Vertical", 6),
    Sketcher.Constraint("Horizontal", 8),
    Sketcher.Constraint("Vertical", 9),
    Sketcher.Constraint("Horizontal", 10),
    Sketcher.Constraint("Vertical", 13),
    Sketcher.Constraint("Horizontal", 16),
    Sketcher.Constraint("Vertical", 19),
    Sketcher.Constraint("Horizontal", 22),
    Sketcher.Constraint("Vertical", 24),
    Sketcher.Constraint("Horizontal", 27),
    Sketcher.Constraint("Vertical", 30),
    Sketcher.Constraint("Horizontal", 33),
    Sketcher.Constraint("Horizontal", 36),
    Sketcher.Constraint("Vertical", 38),
    Sketcher.Constraint("Horizontal", 40),
    Sketcher.Constraint("Vertical", 41),
    Sketcher.Constraint("Equal", 2, 4),
    Sketcher.Constraint("Equal", 7, 11),
    Sketcher.Constraint("Equal", 12, 14),
    Sketcher.Constraint("Equal", 14, 15),
    Sketcher.Constraint("Equal", 15, 17),
    Sketcher.Constraint("Equal", 17, 18),
    Sketcher.Constraint("Equal", 18, 20),
    Sketcher.Constraint("Equal", 20, 21),
    Sketcher.Constraint("Equal", 21, 23),
    Sketcher.Constraint("Equal", 23, 25),
    Sketcher.Constraint("Equal", 25, 26),
    Sketcher.Constraint("Equal", 26, 28),
    Sketcher.Constraint("Equal", 28, 29),
    Sketcher.Constraint("Equal", 29, 31),
    Sketcher.Constraint("Equal", 31, 32),
    Sketcher.Constraint("Equal", 32, 34),
    Sketcher.Constraint("Equal", 34, 35),
    Sketcher.Constraint("Equal", 37, 39),
    Sketcher.Constraint("Horizontal", 14, 2, 17, 2),
    Sketcher.Constraint("Horizontal", 20, 2, 23, 2),
    Sketcher.Constraint("Horizontal", 25, 2, 28, 2),
    Sketcher.Constraint("Horizontal", 31, 2, 34, 2),
    Sketcher.Constraint("Vertical", 21, 3, 25, 3),
    Sketcher.Constraint("Vertical", 23, 3, 28, 3),
    Sketcher.Constraint("Vertical", 5, 2, 18, 2),
    Sketcher.Constraint("Vertical", 17, 2, 20, 2),
    Sketcher.Constraint("Vertical", 20, 2, 25, 2),
    Sketcher.Constraint("Vertical", 28, 2, 31, 2),
    Sketcher.Constraint("Vertical", 35, 2, 40, 2),
    Sketcher.Constraint("Equal", 19, 24),
    Sketcher.Constraint("Radius", 2, Q("1.5 mm")),
    Sketcher.Constraint("Radius", 37, Q("1.2 mm")),
    Sketcher.Constraint("DistanceY", 0, 2, 0, 1, Q("11 mm")),
    Sketcher.Constraint("DistanceY", 41, 2, 41, 1, Q("18 mm")),
    Sketcher.Constraint("Radius", 7, Q("1.46 mm")),
    Sketcher.Constraint("Radius", 12, Q("1.25 mm")),
    Sketcher.Constraint("DistanceX", 1, 1, 1, 2, Q("11.5 mm")),
    Sketcher.Constraint("DistanceX", 16, 2, 16, 1, Q("14.5 mm")),
    Sketcher.Constraint("DistanceX", 36, 1, 36, 2, Q("14.1 mm")),
    Sketcher.Constraint("DistanceY", 13, 1, 13, 2, Q("12.5 mm")),
    Sketcher.Constraint("DistanceX", 8, 2, 8, 1, Q("11.16 mm")),
    Sketcher.Constraint("DistanceY", 6, 1, 6, 2, Q("11.12 mm")),
    Sketcher.Constraint("DistanceY", 2, 3, -1, 1, Q("19.4 mm")),
    Sketcher.Constraint("DistanceY", -1, 1, 7, 2, Q("20.9 mm")),
    Sketcher.Constraint("DistanceY", -1, 1, 15, 2, Q("73.3 mm")),
    Sketcher.Constraint("DistanceY", -1, 1, 26, 2, Q("76.3 mm")),
    Sketcher.Constraint("DistanceX", -1, 1, 2, 3, Q("12.13 mm")),
    Sketcher.Constraint("DistanceX", -1, 1, 7, 3, Q("12.22 mm")),
    Sketcher.Constraint("DistanceY", -1, 1, 37, 3, Q("94.75 mm")),
    Sketcher.Constraint("DistanceX", -1, 1, 14, 2, Q("17.13 mm")),
])
pocket2 = body.newObject("PartDesign::Pocket", "Pocket001")
pocket2.Profile = sketch6
pocket2.Length = 5

doc.recompute()
